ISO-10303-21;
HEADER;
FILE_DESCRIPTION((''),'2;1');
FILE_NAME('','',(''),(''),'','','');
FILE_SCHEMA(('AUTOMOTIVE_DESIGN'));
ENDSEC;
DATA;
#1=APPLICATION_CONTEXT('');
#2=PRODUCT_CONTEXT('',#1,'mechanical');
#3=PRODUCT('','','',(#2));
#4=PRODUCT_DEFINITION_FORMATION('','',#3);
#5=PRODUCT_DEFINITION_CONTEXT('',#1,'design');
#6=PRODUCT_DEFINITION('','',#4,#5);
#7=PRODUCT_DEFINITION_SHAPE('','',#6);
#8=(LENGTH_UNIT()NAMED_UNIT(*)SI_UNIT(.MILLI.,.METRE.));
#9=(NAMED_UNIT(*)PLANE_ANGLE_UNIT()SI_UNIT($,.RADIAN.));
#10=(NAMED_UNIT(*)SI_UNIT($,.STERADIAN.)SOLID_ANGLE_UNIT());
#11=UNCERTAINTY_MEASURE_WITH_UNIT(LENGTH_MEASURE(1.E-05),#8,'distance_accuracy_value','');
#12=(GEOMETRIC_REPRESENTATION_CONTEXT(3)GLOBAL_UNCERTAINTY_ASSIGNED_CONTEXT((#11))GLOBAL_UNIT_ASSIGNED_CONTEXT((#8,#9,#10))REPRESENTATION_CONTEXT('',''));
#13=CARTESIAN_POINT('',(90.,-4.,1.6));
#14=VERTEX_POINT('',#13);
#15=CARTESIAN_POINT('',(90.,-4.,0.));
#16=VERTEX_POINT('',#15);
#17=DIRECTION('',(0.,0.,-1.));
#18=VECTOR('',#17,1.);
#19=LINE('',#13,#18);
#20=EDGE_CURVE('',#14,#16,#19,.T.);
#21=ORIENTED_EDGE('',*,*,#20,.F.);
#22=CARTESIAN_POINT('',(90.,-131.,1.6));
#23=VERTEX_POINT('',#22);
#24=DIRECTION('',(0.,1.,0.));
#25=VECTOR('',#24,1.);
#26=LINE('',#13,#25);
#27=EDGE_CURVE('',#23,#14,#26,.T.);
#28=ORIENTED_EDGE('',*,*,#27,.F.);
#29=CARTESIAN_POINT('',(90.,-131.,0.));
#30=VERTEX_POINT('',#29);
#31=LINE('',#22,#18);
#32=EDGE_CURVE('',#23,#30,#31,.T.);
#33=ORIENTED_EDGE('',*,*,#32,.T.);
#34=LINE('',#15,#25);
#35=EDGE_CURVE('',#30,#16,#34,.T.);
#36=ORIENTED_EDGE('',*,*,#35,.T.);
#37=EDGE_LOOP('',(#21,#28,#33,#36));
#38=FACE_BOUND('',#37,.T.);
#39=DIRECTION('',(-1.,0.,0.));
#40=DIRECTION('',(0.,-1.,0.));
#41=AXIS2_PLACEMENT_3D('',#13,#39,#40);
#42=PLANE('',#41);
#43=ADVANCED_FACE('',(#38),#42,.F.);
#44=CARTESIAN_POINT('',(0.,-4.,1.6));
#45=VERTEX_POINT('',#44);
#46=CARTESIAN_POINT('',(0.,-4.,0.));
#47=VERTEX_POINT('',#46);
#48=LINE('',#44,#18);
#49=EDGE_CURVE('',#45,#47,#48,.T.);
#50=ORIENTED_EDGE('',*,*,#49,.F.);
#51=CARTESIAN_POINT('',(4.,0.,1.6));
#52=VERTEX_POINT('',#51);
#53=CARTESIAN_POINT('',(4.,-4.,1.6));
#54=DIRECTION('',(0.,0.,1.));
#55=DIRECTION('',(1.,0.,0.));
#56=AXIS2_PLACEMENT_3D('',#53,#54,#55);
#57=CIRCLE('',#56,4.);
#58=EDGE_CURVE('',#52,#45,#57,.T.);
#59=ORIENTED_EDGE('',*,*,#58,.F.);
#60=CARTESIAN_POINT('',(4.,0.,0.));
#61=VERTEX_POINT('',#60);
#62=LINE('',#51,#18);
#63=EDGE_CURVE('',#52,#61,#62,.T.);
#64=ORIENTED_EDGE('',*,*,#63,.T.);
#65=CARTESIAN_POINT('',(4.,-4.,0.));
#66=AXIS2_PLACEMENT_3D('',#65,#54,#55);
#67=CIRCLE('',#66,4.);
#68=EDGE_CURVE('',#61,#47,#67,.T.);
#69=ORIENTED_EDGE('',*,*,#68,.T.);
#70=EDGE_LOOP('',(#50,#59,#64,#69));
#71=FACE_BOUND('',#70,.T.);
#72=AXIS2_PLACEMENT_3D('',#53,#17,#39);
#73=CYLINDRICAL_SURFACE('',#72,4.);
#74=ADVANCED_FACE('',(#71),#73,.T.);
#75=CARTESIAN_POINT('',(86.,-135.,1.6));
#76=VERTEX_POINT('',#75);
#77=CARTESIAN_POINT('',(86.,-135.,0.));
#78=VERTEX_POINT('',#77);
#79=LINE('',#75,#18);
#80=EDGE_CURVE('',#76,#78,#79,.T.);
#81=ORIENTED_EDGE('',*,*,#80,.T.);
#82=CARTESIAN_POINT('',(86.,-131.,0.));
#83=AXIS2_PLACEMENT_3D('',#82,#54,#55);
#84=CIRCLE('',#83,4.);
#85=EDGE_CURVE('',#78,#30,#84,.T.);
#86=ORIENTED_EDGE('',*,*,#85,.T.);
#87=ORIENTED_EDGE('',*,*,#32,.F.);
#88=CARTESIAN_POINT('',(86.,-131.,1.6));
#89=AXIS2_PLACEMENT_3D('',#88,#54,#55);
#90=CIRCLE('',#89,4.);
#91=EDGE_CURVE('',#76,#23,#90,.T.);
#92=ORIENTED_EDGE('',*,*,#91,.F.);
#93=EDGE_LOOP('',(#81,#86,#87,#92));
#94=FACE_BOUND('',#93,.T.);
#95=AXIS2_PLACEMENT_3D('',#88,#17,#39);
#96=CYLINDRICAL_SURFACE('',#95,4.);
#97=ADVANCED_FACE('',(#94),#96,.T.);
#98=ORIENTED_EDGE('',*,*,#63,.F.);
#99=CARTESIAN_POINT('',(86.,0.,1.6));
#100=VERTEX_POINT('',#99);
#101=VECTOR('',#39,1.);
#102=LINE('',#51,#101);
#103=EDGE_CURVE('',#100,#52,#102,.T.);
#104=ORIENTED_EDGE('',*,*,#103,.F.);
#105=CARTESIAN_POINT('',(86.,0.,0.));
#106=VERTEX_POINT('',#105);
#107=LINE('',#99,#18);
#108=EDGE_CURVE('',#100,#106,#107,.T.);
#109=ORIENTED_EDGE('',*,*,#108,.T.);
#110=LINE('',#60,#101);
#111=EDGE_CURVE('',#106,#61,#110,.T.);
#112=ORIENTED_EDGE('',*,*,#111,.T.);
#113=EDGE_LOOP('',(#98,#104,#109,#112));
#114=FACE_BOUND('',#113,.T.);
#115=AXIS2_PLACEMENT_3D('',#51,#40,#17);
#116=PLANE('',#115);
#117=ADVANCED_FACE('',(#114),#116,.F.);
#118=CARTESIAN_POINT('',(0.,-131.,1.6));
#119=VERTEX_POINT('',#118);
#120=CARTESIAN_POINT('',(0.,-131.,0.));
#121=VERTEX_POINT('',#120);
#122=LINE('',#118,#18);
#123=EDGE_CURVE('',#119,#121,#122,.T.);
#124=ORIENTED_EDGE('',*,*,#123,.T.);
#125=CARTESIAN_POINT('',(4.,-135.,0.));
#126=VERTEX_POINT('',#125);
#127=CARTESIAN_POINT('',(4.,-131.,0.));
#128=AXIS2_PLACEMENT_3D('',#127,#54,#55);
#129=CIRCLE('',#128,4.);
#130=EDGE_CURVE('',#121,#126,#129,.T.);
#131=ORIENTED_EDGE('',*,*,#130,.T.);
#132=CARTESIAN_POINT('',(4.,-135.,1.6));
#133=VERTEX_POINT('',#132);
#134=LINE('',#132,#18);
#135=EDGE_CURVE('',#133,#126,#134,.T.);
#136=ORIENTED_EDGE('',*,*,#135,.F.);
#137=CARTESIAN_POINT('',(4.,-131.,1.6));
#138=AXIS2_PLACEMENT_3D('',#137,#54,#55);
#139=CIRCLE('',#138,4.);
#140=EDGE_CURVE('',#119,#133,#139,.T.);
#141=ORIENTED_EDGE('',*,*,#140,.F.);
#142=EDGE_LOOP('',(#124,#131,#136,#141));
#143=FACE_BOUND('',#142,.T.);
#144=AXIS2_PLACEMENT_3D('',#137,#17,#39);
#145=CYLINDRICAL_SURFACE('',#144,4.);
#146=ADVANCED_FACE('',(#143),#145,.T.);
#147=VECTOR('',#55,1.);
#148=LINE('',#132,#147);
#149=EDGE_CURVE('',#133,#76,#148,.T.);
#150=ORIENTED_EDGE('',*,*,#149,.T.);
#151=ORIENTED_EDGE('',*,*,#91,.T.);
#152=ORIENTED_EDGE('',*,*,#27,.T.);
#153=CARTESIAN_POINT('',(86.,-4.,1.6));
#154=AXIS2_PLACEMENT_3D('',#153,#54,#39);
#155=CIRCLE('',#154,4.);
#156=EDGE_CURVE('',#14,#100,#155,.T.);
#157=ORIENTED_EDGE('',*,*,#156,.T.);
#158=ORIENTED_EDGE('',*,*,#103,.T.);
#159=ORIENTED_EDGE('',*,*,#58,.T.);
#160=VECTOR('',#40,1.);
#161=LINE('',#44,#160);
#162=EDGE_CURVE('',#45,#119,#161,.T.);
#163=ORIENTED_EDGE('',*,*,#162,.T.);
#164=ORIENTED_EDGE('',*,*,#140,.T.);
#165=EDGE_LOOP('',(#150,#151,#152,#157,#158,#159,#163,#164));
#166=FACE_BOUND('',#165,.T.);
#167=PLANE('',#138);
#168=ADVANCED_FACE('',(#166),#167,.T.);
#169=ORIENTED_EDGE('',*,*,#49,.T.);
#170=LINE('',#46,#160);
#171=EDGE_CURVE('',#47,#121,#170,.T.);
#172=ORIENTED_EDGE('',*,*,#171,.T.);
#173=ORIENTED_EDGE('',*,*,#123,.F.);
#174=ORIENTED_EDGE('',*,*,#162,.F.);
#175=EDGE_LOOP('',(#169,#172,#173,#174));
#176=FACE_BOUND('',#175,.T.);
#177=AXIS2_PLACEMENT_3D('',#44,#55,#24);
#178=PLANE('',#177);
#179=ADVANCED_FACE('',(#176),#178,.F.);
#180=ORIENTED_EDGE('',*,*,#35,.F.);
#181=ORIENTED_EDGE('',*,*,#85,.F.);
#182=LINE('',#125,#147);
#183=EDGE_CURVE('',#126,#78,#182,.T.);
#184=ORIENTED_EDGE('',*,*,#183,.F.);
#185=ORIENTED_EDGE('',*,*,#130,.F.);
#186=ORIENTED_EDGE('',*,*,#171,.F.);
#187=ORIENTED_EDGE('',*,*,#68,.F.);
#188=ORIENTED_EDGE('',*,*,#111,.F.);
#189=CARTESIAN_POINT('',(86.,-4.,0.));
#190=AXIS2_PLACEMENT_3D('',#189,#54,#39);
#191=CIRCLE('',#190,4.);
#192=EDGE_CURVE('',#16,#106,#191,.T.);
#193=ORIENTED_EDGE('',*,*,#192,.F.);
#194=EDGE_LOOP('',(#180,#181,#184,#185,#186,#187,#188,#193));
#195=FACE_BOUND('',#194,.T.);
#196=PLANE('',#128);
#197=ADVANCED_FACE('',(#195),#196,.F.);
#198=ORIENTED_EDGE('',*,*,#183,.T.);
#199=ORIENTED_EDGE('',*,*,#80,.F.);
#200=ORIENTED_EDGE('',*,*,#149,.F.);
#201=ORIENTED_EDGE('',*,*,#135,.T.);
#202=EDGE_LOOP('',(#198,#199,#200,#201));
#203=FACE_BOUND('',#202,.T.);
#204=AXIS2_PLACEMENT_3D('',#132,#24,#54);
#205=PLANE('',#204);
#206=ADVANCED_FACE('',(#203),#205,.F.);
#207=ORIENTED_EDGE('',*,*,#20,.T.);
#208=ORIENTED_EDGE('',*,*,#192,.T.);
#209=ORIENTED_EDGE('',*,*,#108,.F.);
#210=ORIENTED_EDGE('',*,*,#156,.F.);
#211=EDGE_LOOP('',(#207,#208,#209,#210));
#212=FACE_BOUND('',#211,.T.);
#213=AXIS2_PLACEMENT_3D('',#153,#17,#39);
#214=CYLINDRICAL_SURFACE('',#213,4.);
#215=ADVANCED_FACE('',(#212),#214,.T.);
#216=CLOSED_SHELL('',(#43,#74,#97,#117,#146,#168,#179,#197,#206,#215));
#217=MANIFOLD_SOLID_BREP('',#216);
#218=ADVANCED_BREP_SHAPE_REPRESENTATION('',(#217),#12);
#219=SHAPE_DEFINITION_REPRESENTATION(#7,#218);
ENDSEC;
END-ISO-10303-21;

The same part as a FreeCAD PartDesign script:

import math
import FreeCAD as App
import Part
import Sketcher

V = App.Vector
Q = App.Units.Quantity

doc = App.newDocument("Part")
body = doc.addObject("PartDesign::Body", "Body")

# Sketch on XY plane
sketch1 = body.newObject("Sketcher::SketchObject", "Sketch")
sketch1.AttachmentSupport = (doc.getObject("XY_Plane"), [""])
sketch1.MapMode = "FlatFace"
sketch1.addGeometry(Part.LineSegment(V(86, 0, 0), V(4, 0, 0)), False)
sketch1.addGeometry(Part.ArcOfCircle(Part.Circle(V(4, -4, 0), V(0, 0, 1), 4), math.radians(90), math.radians(180)), False)
sketch1.addGeometry(Part.LineSegment(V(0, -4, 0), V(0, -131, 0)), False)
sketch1.addGeometry(Part.ArcOfCircle(Part.Circle(V(4, -131, 0), V(0, 0, 1), 4), math.radians(180), math.radians(270)), False)
sketch1.addGeometry(Part.LineSegment(V(4, -135, 0), V(86, -135, 0)), False)
sketch1.addGeometry(Part.ArcOfCircle(Part.Circle(V(86, -131, 0), V(0, 0, 1), 4), math.radians(-90), math.radians(0)), False)
sketch1.addGeometry(Part.LineSegment(V(90, -131, 0), V(90, -4, 0)), False)
sketch1.addGeometry(Part.ArcOfCircle(Part.Circle(V(86, -4, 0), V(0, 0, 1), 4), math.radians(0), math.radians(90)), False)
sketch1.addConstraint(Sketcher.Constraint("Tangent", 0, 2, 1, 1))
sketch1.addConstraint(Sketcher.Constraint("Tangent", 1, 2, 2, 1))
sketch1.addConstraint(Sketcher.Constraint("Tangent", 2, 2, 3, 1))
sketch1.addConstraint(Sketcher.Constraint("Tangent", 3, 2, 4, 1))
sketch1.addConstraint(Sketcher.Constraint("Tangent", 4, 2, 5, 1))
sketch1.addConstraint(Sketcher.Constraint("Tangent", 5, 2, 6, 1))
sketch1.addConstraint(Sketcher.Constraint("Tangent", 6, 2, 7, 1))
sketch1.addConstraint(Sketcher.Constraint("Tangent", 7, 2, 0, 1))
sketch1.addConstraint(Sketcher.Constraint("Horizontal", 0))
sketch1.addConstraint(Sketcher.Constraint("Vertical", 2))
sketch1.addConstraint(Sketcher.Constraint("Horizontal", 4))
sketch1.addConstraint(Sketcher.Constraint("Vertical", 6))
sketch1.addConstraint(Sketcher.Constraint("Equal", 1, 3))
sketch1.addConstraint(Sketcher.Constraint("Equal", 3, 5))
sketch1.addConstraint(Sketcher.Constraint("Equal", 5, 7))
sketch1.addConstraint(Sketcher.Constraint("PointOnObject", 0, 2, -1))
sketch1.addConstraint(Sketcher.Constraint("PointOnObject", 1, 2, -2))
sketch1.addConstraint(Sketcher.Constraint("Radius", 1, Q("4 mm")))
sketch1.addConstraint(Sketcher.Constraint("DistanceX", 0, 2, 0, 1, Q("82 mm")))
sketch1.addConstraint(Sketcher.Constraint("DistanceY", 2, 2, 2, 1, Q("127 mm")))
pad1 = body.newObject("PartDesign::Pad", "Pad")
pad1.Profile = sketch1
pad1.Length = 1.6

doc.recompute()
